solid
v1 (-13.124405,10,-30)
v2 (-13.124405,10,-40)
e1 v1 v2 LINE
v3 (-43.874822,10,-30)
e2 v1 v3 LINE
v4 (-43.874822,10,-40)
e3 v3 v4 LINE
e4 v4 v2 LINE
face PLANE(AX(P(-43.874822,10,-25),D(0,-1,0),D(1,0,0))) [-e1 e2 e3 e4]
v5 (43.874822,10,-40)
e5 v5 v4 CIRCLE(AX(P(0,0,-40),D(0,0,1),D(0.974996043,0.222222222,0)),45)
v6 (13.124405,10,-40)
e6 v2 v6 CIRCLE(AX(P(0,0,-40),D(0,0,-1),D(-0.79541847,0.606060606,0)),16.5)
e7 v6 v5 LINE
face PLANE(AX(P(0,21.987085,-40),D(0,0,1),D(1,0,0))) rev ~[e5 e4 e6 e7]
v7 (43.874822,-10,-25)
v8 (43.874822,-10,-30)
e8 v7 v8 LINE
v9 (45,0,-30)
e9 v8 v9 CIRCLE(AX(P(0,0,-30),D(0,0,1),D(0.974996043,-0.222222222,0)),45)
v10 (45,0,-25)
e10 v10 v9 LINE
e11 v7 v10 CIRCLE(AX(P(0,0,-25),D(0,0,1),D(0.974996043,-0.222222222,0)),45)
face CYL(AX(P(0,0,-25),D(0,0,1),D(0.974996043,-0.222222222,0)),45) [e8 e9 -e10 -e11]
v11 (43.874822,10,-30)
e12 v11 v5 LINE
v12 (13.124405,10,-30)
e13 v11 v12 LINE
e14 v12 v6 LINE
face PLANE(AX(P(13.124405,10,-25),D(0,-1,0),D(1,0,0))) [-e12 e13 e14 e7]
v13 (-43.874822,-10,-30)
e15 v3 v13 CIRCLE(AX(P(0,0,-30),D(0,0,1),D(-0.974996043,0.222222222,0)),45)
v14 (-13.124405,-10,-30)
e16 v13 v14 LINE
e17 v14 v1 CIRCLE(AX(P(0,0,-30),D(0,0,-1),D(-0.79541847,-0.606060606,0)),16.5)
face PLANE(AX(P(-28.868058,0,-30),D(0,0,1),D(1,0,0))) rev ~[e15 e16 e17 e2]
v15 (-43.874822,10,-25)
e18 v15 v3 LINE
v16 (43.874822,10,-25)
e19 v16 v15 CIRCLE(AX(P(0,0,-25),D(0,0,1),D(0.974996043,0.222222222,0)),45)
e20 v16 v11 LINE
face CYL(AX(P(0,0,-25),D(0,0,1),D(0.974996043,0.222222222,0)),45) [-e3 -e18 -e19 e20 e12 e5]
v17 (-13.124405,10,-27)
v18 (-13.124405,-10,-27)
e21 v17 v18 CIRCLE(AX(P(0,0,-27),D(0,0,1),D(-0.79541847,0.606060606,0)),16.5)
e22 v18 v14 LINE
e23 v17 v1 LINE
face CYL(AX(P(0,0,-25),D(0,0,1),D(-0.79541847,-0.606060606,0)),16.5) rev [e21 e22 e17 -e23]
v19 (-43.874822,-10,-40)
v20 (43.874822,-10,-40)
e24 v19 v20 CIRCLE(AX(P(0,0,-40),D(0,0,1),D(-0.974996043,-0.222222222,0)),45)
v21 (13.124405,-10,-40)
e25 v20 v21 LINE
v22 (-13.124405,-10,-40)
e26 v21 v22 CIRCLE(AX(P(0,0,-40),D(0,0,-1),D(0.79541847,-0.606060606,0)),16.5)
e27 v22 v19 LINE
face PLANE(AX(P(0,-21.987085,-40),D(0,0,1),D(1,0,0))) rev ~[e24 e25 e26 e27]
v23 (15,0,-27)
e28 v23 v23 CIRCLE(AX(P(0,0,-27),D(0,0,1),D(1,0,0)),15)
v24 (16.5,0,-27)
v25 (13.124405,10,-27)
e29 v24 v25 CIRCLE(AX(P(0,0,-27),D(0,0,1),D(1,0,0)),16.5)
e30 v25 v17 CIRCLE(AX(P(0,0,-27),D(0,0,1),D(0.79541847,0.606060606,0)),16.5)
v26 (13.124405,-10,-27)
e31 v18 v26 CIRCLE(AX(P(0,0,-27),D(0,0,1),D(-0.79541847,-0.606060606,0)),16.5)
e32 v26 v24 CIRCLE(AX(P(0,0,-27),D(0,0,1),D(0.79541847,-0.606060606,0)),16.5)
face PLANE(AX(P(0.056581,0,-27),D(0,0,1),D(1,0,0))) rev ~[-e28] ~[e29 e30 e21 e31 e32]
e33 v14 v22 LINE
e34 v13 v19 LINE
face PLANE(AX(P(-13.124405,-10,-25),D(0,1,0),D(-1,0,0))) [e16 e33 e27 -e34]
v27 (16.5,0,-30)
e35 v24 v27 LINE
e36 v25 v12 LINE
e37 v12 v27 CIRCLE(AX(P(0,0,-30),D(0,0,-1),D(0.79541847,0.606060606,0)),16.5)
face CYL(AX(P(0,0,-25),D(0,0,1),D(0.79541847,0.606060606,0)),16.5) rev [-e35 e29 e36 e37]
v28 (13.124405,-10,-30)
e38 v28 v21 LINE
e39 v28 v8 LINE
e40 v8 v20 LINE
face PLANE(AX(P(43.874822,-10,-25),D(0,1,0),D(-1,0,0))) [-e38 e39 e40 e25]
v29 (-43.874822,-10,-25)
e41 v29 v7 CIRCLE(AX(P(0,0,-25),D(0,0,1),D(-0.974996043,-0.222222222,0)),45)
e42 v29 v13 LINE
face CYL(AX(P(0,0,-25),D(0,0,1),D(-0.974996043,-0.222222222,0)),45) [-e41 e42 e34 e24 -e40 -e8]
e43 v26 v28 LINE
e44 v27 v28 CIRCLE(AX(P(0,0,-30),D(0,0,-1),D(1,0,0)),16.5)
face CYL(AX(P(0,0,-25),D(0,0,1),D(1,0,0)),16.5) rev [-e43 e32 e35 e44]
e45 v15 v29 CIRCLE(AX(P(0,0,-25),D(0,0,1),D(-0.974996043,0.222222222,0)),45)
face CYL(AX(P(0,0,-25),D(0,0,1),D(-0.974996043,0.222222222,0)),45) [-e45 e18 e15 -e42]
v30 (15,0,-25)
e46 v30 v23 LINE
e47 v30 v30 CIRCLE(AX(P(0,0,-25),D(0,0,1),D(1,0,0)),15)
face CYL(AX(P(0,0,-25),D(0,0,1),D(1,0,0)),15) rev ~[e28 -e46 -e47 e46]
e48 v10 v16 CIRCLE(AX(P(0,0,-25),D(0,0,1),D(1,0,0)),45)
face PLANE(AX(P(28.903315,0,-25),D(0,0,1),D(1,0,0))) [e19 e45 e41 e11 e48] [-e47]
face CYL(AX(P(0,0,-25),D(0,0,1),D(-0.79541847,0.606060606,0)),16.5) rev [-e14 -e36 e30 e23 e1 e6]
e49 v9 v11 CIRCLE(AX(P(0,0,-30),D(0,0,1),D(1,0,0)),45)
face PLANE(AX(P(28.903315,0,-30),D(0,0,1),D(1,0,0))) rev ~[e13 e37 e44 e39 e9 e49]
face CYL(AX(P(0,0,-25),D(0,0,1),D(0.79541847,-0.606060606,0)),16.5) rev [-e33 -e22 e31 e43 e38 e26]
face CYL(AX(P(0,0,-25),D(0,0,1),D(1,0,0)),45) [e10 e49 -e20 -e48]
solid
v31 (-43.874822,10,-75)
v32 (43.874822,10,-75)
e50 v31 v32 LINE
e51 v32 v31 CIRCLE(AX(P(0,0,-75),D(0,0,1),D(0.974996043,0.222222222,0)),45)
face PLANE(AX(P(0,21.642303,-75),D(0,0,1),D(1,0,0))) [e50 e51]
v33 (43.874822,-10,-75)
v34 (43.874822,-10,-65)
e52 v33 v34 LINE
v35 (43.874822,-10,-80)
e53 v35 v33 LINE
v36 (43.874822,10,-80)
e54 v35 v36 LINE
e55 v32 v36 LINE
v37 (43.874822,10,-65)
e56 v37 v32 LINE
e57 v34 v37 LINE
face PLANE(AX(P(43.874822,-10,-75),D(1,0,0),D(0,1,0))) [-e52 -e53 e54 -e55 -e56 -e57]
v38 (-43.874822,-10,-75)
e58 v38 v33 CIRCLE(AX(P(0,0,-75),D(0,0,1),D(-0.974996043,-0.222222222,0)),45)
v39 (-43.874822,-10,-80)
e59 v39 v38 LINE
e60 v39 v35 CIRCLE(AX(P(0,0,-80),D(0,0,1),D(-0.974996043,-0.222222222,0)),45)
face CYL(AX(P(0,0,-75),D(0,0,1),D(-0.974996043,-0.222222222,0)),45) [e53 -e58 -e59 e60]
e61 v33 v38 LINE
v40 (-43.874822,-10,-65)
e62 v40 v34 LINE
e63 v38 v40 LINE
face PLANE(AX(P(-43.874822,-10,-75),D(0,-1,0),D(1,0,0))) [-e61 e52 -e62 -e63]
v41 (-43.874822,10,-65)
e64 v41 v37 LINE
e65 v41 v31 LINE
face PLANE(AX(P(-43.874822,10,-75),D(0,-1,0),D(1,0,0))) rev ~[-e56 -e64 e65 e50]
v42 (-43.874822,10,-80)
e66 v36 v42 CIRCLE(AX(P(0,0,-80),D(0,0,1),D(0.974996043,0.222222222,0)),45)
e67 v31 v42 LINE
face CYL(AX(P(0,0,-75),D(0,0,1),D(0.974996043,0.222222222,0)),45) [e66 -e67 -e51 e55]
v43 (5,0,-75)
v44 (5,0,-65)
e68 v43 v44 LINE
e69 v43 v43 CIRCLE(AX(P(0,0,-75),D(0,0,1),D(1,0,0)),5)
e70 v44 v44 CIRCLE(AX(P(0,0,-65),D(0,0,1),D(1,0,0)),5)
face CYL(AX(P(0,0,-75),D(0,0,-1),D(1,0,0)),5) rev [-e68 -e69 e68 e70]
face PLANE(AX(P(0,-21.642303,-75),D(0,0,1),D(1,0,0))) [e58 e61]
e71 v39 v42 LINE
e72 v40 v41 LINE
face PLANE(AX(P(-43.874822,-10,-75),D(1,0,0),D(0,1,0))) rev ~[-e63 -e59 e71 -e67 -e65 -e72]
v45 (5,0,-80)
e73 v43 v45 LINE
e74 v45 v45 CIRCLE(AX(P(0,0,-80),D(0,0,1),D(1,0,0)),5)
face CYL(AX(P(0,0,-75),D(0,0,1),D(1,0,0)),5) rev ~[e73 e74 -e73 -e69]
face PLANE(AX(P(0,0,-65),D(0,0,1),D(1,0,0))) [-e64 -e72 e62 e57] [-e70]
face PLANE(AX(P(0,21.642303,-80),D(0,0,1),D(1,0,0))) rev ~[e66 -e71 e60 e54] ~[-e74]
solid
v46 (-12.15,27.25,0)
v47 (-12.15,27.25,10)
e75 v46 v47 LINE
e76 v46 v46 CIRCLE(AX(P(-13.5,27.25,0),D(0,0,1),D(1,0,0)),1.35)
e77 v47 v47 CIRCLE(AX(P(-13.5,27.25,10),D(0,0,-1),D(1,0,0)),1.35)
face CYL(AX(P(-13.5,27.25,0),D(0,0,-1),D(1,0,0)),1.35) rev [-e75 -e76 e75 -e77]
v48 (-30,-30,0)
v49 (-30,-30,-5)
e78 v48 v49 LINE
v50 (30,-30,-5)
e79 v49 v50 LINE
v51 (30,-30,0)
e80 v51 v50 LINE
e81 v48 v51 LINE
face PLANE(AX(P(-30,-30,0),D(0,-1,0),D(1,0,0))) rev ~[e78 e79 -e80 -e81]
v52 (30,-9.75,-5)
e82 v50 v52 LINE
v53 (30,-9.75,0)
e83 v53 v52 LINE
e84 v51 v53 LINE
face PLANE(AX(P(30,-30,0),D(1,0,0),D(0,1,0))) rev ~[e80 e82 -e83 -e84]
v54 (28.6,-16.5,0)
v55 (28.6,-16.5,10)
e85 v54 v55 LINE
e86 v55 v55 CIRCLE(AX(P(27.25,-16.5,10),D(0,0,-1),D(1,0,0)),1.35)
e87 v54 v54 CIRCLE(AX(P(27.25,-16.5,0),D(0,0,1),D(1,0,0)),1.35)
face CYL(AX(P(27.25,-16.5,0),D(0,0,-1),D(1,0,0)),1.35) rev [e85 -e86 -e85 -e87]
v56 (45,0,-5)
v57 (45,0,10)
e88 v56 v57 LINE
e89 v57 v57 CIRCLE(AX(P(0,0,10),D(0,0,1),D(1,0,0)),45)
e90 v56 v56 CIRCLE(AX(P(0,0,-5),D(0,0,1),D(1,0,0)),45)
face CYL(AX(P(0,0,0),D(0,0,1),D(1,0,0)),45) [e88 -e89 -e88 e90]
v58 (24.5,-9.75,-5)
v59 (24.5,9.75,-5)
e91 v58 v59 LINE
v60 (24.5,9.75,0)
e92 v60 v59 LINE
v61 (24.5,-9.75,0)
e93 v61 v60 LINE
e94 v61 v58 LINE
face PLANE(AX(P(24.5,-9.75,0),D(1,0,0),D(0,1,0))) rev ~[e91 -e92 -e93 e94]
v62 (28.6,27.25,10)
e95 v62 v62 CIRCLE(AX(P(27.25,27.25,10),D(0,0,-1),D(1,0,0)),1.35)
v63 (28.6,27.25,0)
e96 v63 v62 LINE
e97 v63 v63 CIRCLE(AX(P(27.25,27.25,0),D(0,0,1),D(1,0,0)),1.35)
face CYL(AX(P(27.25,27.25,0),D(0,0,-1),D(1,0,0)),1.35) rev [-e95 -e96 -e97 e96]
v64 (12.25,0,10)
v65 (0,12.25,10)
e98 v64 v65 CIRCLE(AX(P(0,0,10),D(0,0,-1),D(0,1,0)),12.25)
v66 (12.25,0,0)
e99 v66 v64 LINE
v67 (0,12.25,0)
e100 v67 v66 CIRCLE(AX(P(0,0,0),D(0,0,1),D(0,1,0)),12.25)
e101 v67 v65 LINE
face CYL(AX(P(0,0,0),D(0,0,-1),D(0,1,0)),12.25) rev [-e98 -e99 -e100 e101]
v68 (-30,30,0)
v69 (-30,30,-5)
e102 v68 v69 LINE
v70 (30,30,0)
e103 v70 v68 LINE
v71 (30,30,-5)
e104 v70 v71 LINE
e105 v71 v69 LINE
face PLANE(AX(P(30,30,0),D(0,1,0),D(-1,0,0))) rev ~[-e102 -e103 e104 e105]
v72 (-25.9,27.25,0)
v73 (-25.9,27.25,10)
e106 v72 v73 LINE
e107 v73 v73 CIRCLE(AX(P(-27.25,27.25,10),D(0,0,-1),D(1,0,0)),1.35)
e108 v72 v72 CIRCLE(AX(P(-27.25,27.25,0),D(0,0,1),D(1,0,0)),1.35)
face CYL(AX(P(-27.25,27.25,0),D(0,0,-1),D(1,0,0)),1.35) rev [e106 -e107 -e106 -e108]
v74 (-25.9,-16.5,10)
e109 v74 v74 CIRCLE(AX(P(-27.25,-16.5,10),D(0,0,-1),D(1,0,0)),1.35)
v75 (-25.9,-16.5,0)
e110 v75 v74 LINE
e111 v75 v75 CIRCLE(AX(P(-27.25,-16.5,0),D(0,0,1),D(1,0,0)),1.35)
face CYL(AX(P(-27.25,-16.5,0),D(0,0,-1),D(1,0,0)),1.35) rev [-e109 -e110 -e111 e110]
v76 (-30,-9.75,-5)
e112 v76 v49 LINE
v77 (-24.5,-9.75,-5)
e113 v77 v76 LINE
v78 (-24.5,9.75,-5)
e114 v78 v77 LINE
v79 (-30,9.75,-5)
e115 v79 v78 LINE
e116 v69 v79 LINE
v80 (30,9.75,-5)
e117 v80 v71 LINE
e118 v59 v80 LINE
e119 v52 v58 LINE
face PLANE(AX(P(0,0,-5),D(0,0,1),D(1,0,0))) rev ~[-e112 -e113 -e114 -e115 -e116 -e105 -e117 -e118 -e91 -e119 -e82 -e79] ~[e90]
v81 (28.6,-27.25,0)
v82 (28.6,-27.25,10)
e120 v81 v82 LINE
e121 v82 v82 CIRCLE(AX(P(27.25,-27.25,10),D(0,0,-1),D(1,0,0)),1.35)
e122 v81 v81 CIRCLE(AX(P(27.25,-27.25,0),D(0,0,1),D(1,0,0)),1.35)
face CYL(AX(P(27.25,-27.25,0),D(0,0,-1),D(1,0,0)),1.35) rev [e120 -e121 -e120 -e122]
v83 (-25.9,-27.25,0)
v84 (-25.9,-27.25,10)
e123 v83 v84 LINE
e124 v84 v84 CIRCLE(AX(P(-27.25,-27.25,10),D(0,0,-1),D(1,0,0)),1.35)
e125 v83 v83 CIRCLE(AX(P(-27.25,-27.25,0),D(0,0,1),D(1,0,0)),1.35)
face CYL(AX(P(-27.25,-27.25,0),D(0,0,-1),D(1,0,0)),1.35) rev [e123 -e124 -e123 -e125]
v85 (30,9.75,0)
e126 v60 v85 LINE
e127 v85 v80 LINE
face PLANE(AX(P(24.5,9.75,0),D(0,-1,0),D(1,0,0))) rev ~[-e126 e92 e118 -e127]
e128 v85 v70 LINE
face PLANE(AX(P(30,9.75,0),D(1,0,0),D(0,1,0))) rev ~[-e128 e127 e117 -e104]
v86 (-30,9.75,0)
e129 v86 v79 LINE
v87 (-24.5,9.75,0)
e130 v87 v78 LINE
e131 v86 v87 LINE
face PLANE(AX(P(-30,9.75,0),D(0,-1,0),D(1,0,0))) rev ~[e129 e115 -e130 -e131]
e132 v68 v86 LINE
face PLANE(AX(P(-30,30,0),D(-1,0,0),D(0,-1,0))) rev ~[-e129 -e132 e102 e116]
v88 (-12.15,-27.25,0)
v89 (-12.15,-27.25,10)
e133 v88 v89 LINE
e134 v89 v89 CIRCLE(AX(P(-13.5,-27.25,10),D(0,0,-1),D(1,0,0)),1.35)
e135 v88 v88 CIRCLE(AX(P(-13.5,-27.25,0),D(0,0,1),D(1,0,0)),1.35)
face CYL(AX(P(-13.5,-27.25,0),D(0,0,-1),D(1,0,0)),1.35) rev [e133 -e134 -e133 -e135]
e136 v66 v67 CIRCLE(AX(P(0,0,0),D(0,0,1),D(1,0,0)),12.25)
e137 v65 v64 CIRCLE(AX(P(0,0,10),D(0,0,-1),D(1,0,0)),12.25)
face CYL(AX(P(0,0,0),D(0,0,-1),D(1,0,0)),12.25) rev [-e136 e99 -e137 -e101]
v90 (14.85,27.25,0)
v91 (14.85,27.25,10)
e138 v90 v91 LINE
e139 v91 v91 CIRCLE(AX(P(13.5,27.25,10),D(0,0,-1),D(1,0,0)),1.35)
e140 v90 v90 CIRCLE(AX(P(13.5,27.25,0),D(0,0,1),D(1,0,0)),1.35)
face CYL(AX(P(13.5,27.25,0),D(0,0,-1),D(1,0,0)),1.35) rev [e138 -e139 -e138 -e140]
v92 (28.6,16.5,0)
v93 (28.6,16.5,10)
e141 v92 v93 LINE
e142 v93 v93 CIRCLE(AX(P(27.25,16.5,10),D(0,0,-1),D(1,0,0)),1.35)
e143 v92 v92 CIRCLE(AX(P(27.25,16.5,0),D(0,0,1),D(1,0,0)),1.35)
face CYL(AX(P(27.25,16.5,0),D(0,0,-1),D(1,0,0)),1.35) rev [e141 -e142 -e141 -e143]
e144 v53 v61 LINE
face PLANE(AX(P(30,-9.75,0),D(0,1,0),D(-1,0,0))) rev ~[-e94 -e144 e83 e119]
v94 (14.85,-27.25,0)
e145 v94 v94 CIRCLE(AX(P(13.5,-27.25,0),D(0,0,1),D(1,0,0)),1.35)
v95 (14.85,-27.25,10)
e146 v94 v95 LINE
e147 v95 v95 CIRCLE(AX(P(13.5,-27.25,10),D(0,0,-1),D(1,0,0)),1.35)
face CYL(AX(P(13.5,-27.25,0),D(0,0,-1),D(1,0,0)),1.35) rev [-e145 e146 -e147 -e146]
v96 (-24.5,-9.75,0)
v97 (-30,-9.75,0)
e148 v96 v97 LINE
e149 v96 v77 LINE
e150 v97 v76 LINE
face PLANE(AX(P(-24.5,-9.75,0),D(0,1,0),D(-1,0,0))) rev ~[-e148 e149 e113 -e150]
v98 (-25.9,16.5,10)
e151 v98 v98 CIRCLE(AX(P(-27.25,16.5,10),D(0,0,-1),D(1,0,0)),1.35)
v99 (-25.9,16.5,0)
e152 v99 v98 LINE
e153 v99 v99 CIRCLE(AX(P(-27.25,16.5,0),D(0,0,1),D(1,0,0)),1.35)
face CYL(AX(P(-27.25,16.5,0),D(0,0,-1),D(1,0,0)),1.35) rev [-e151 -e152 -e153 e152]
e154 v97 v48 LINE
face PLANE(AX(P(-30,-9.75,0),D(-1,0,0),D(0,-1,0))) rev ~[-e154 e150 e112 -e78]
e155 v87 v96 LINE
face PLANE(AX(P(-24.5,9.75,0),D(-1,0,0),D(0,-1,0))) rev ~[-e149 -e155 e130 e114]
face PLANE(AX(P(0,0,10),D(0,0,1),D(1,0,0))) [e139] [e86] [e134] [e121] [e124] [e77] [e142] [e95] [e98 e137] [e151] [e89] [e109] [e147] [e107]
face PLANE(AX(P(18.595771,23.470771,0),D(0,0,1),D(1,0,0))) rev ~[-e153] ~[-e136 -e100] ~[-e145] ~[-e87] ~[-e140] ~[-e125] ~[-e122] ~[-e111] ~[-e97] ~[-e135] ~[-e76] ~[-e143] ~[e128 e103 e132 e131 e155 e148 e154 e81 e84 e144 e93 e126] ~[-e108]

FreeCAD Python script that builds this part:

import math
import FreeCAD as App
import Part
import Sketcher
from FreeCAD import Vector


def add_polygon(sketch, points):
    """Adds a closed chain of lines whose ends are joined by coincident constraints."""
    first, n = sketch.GeometryCount, len(points)
    for a, b in zip(points, points[1:] + points[:1]):
        sketch.addGeometry(Part.LineSegment(App.Vector(*a, 0), App.Vector(*b, 0)), False)
    for i in range(n):
        sketch.addConstraint(Sketcher.Constraint("Coincident", first + i, 2, first + (i + 1) % n, 1))

doc = App.newDocument("Part")
params = doc.addObject("Spreadsheet::Sheet", "Params")
for row, (alias, value) in enumerate([
    ("sketch1_diameter", "90 mm"),
    ("pad1_length", "10 mm"),
    ("pad1_length2", "5 mm"),
    ("sketch2_diameter", "2.7 mm"),
    ("sketch2_width", "60 mm"),
    ("sketch2_radius", "12.25 mm"),
    ("sketch2_width2", "5.5 mm"),
    ("sketch2_height", "19.5 mm"),
    ("sketch3_diameter", "2.7 mm"),
    ("sketch3_radius", "12.25 mm"),
    ("sketch4_diameter", "30 mm"),
    ("sketch4_radius", "16.5 mm"),
    ("pad2_length", "2 mm"),
    ("sketch5_radius", "45 mm"),
    ("sketch5_radius2", "16.5 mm"),
    ("pad3_length", "5 mm"),
    ("sketch6_radius", "45 mm"),
    ("sketch6_radius2", "16.5 mm"),
    ("pad4_length", "15 mm"),
    ("sketch7_diameter", "10 mm"),
    ("sketch7_height", "20 mm"),
    ("pad5_length", "10 mm"),
    ("pad5_length2", "5 mm"),
    ("sketch8_radius", "45 mm"),
    ("pad6_length", "5 mm"),
], start=1):
    params.set(f"A{row}", alias)
    params.set(f"B{row}", "=" + value)
    params.setAlias(f"B{row}", alias)

body = doc.addObject("PartDesign::Body", "Body")

sketch1 = body.newObject("Sketcher::SketchObject", "Sketch")
sketch1.AttachmentSupport = (doc.getObject("XY_Plane"), [""])
sketch1.MapMode = "FlatFace"
sketch1.addGeometry(Part.Circle(Vector(0, 0, 0), Vector(0, 0, 1), 45), False)
sketch1.addConstraint([
    Sketcher.Constraint("Coincident", 0, 3, -1, 1),
    Sketcher.Constraint("Diameter", 0, 90.0),
])
sketch1.setExpression("Constraints[1]", "Params.sketch1_diameter")
pad1 = body.newObject("PartDesign::Pad", "Pad")
pad1.Profile = sketch1
pad1.Type = "TwoLengths"
pad1.setExpression("Length", "Params.pad1_length")
pad1.setExpression("Length2", "Params.pad1_length2")

sketch2 = body.newObject("Sketcher::SketchObject", "Sketch001")
sketch2.AttachmentSupport = (doc.getObject("XY_Plane"), [""])
sketch2.MapMode = "FlatFace"
add_polygon(sketch2, [(24.5, 9.75), (30, 9.75), (30, 30), (-30, 30), (-30, 9.75), (-24.5, 9.75), (-24.5, -9.75), (-30, -9.75), (-30, -30), (30, -30), (30, -9.75), (24.5, -9.75)])
sketch2.addGeometry(Part.Circle(Vector(-27.25, -27.25, 0), Vector(0, 0, 1), 1.35), False)
sketch2.addGeometry(Part.Circle(Vector(-27.25, -16.5, 0), Vector(0, 0, 1), 1.35), False)
sketch2.addGeometry(Part.Circle(Vector(-13.5, -27.25, 0), Vector(0, 0, 1), 1.35), False)
sketch2.addGeometry(Part.Circle(Vector(13.5, -27.25, 0), Vector(0, 0, 1), 1.35), False)
sketch2.addGeometry(Part.Circle(Vector(27.25, -27.25, 0), Vector(0, 0, 1), 1.35), False)
sketch2.addGeometry(Part.Circle(Vector(27.25, -16.5, 0), Vector(0, 0, 1), 1.35), False)
sketch2.addGeometry(Part.Circle(Vector(-27.25, 16.5, 0), Vector(0, 0, 1), 1.35), False)
sketch2.addGeometry(Part.Circle(Vector(-27.25, 27.25, 0), Vector(0, 0, 1), 1.35), False)
sketch2.addGeometry(Part.Circle(Vector(-13.5, 27.25, 0), Vector(0, 0, 1), 1.35), False)
sketch2.addGeometry(Part.ArcOfCircle(Part.Circle(Vector(0, 0, 0), Vector(0, 0, 1), 12.25), math.radians(0), math.radians(90)), False)
sketch2.addGeometry(Part.ArcOfCircle(Part.Circle(Vector(0, 0, 0), Vector(0, 0, 1), 12.25), math.radians(90), math.radians(360)), False)
sketch2.addGeometry(Part.Circle(Vector(13.5, 27.25, 0), Vector(0, 0, 1), 1.35), False)
sketch2.addGeometry(Part.Circle(Vector(27.25, 16.5, 0), Vector(0, 0, 1), 1.35), False)
sketch2.addGeometry(Part.Circle(Vector(27.25, 27.25, 0), Vector(0, 0, 1), 1.35), False)
sketch2.addConstraint([
    Sketcher.Constraint("Tangent", 21, 1, 22, 2),
    Sketcher.Constraint("Coincident", 22, 1, 21, 2),
    Sketcher.Constraint("Horizontal", 0),
    Sketcher.Constraint("Vertical", 1),
    Sketcher.Constraint("Horizontal", 2),
    Sketcher.Constraint("Vertical", 3),
    Sketcher.Constraint("Horizontal", 4),
    Sketcher.Constraint("Vertical", 5),
    Sketcher.Constraint("Horizontal", 6),
    Sketcher.Constraint("Vertical", 7),
    Sketcher.Constraint("Horizontal", 8),
    Sketcher.Constraint("Vertical", 9),
    Sketcher.Constraint("Horizontal", 10),
    Sketcher.Constraint("Vertical", 11),
    Sketcher.Constraint("Coincident", 21, 3, -1, 1),
    Sketcher.Constraint("Equal", 12, 13),
    Sketcher.Constraint("Equal", 13, 14),
    Sketcher.Constraint("Equal", 14, 15),
    Sketcher.Constraint("Equal", 15, 16),
    Sketcher.Constraint("Equal", 16, 17),
    Sketcher.Constraint("Equal", 17, 18),
    Sketcher.Constraint("Equal", 18, 19),
    Sketcher.Constraint("Equal", 19, 20),
    Sketcher.Constraint("Equal", 20, 23),
    Sketcher.Constraint("Equal", 23, 24),
    Sketcher.Constraint("Equal", 24, 25),
    Sketcher.Constraint("Symmetric", 17, 3, 18, 3, -1, 1),
    Sketcher.Constraint("Symmetric", 16, 3, 19, 3, -1, 1),
    Sketcher.Constraint("Symmetric", 15, 3, 20, 3, -1, 1),
    Sketcher.Constraint("Symmetric", 14, 3, 23, 3, -1, 1),
    Sketcher.Constraint("Symmetric", 13, 3, 24, 3, -1, 1),
    Sketcher.Constraint("Symmetric", 12, 3, 25, 3, -1, 1),
    Sketcher.Constraint("Symmetric", 0, 2, 6, 2, -1, 1),
    Sketcher.Constraint("Symmetric", 2, 2, 8, 2, -1, 1),
    Sketcher.Constraint("Symmetric", 4, 2, 10, 2, -1, 1),
    Sketcher.Constraint("Symmetric", 14, 3, 15, 3, -2),
    Sketcher.Constraint("Symmetric", 12, 3, 16, 3, -2),
    Sketcher.Constraint("Symmetric", 13, 3, 17, 3, -2),
    Sketcher.Constraint("Symmetric", 0, 2, 3, 2, -2),
    Sketcher.Constraint("PointOnObject", 21, 1, -1),
    Sketcher.Constraint("PointOnObject", 22, 1, -2),
    Sketcher.Constraint("Horizontal", 12, 3, 14, 3),
    Sketcher.Constraint("Vertical", 12, 3, 13, 3),
    Sketcher.Constraint("Diameter", 12, 2.7),
    Sketcher.Constraint("DistanceX", 2, 2, 2, 1, 60.0),
    Sketcher.Constraint("Radius", 21, 12.25),
    Sketcher.Constraint("DistanceX", 0, 1, 0, 2, 5.5),
    Sketcher.Constraint("DistanceY", 5, 2, 5, 1, 19.5),
    Sketcher.Constraint("DistanceY", -1, 1, 1, 2, 30.0),
    Sketcher.Constraint("DistanceX", 14, 3, 15, 3, 27.0),
    Sketcher.Constraint("DistanceY", 13, 3, 18, 3, 33.0),
    Sketcher.Constraint("DistanceY", 22, 1, 20, 3, 15.0),
    Sketcher.Constraint("DistanceX", 12, 3, 16, 3, 54.5),
])
sketch2.setExpression("Constraints[55]", "Params.sketch2_diameter")
sketch2.setExpression("Constraints[56]", "Params.sketch2_width")
sketch2.setExpression("Constraints[57]", "Params.sketch2_radius")
sketch2.setExpression("Constraints[58]", "Params.sketch2_width2")
sketch2.setExpression("Constraints[59]", "Params.sketch2_height")
pocket1 = body.newObject("PartDesign::Pocket", "Pocket")
pocket1.Profile = sketch2
pocket1.Type = "ThroughAll"

sketch3 = body.newObject("Sketcher::SketchObject", "Sketch002")
sketch3.AttachmentSupport = (doc.getObject("XY_Plane"), [""])
sketch3.MapMode = "FlatFace"
sketch3.addGeometry([
    Part.Circle(Vector(27.25, -27.25, 0), Vector(0, 0, 1), 1.35),
    Part.Circle(Vector(27.25, -16.5, 0), Vector(0, 0, 1), 1.35),
    Part.ArcOfCircle(Part.Circle(Vector(0, 0, 0), Vector(0, 0, 1), 12.25), math.radians(90), math.radians(360)),
    Part.ArcOfCircle(Part.Circle(Vector(0, 0, 0), Vector(0, 0, 1), 12.25), math.radians(0), math.radians(90)),
    Part.Circle(Vector(27.25, 16.5, 0), Vector(0, 0, 1), 1.35),
    Part.Circle(Vector(27.25, 27.25, 0), Vector(0, 0, 1), 1.35),
    Part.Circle(Vector(13.5, -27.25, 0), Vector(0, 0, 1), 1.35),
    Part.Circle(Vector(13.5, 27.25, 0), Vector(0, 0, 1), 1.35),
    Part.Circle(Vector(-27.25, -16.5, 0), Vector(0, 0, 1), 1.35),
    Part.Circle(Vector(-27.25, -27.25, 0), Vector(0, 0, 1), 1.35),
    Part.Circle(Vector(-13.5, -27.25, 0), Vector(0, 0, 1), 1.35),
    Part.Circle(Vector(-27.25, 16.5, 0), Vector(0, 0, 1), 1.35),
    Part.Circle(Vector(-27.25, 27.25, 0), Vector(0, 0, 1), 1.35),
    Part.Circle(Vector(-13.5, 27.25, 0), Vector(0, 0, 1), 1.35),
], False)
sketch3.addConstraint([
    Sketcher.Constraint("Tangent", 2, 1, 3, 2),
    Sketcher.Constraint("Coincident", 3, 1, 2, 2),
    Sketcher.Constraint("Coincident", 2, 3, -1, 1),
    Sketcher.Constraint("Equal", 0, 1),
    Sketcher.Constraint("Equal", 1, 4),
    Sketcher.Constraint("Equal", 4, 5),
    Sketcher.Constraint("Equal", 5, 6),
    Sketcher.Constraint("Equal", 6, 7),
    Sketcher.Constraint("Equal", 7, 8),
    Sketcher.Constraint("Equal", 8, 9),
    Sketcher.Constraint("Equal", 9, 10),
    Sketcher.Constraint("Equal", 10, 11),
    Sketcher.Constraint("Equal", 11, 12),
    Sketcher.Constraint("Equal", 12, 13),
    Sketcher.Constraint("Symmetric", 4, 3, 8, 3, -1, 1),
    Sketcher.Constraint("Symmetric", 5, 3, 9, 3, -1, 1),
    Sketcher.Constraint("Symmetric", 7, 3, 10, 3, -1, 1),
    Sketcher.Constraint("Symmetric", 1, 3, 11, 3, -1, 1),
    Sketcher.Constraint("Symmetric", 0, 3, 12, 3, -1, 1),
    Sketcher.Constraint("Symmetric", 6, 3, 13, 3, -1, 1),
    Sketcher.Constraint("Symmetric", 1, 3, 8, 3, -2),
    Sketcher.Constraint("Symmetric", 0, 3, 9, 3, -2),
    Sketcher.Constraint("Symmetric", 6, 3, 10, 3, -2),
    Sketcher.Constraint("PointOnObject", 2, 1, -2),
    Sketcher.Constraint("PointOnObject", 3, 1, -1),
    Sketcher.Constraint("Horizontal", 0, 3, 6, 3),
    Sketcher.Constraint("Vertical", 0, 3, 1, 3),
    Sketcher.Constraint("Diameter", 0, 2.7),
    Sketcher.Constraint("Radius", 2, 12.25),
    Sketcher.Constraint("DistanceY", 1, 3, 4, 3, 33.0),
    Sketcher.Constraint("DistanceX", 10, 3, 6, 3, 27.0),
    Sketcher.Constraint("DistanceY", 2, 1, 7, 3, 15.0),
    Sketcher.Constraint("DistanceX", 3, 1, 1, 3, 15.0),
])
sketch3.setExpression("Constraints[27]", "Params.sketch3_diameter")
sketch3.setExpression("Constraints[28]", "Params.sketch3_radius")
pocket2 = body.newObject("PartDesign::Pocket", "Pocket001")
pocket2.Profile = sketch3
pocket2.Type = "ThroughAll"
pocket2.Midplane = True
body2 = doc.addObject("PartDesign::Body", "Body001")

sketch4 = body2.newObject("Sketcher::SketchObject", "Sketch003")
sketch4.AttachmentSupport = (doc.getObject("XY_Plane001"), [""])
sketch4.MapMode = "FlatFace"
sketch4.AttachmentOffset = App.Placement(Vector(0, 0, -25), App.Rotation())
sketch4.addGeometry([
    Part.ArcOfCircle(Part.Circle(Vector(0, 0, 0), Vector(0, 0, 1), 16.5), math.radians(-37.305201), math.radians(0)),
    Part.ArcOfCircle(Part.Circle(Vector(0, 0, 0), Vector(0, 0, 1), 16.5), math.radians(0), math.radians(37.305201)),
    Part.ArcOfCircle(Part.Circle(Vector(0, 0, 0), Vector(0, 0, 1), 16.5), math.radians(37.305201), math.radians(142.694799)),
    Part.ArcOfCircle(Part.Circle(Vector(0, 0, 0), Vector(0, 0, 1), 16.5), math.radians(142.694799), math.radians(217.305201)),
    Part.ArcOfCircle(Part.Circle(Vector(0, 0, 0), Vector(0, 0, 1), 16.5), math.radians(-142.694799), math.radians(-37.305201)),
    Part.Circle(Vector(0, 0, 0), Vector(0, 0, 1), 15),
], False)
sketch4.addConstraint([
    Sketcher.Constraint("Tangent", 0, 2, 1, 1),
    Sketcher.Constraint("Tangent", 1, 2, 2, 1),
    Sketcher.Constraint("Tangent", 2, 2, 3, 1),
    Sketcher.Constraint("Tangent", 3, 2, 4, 1),
    Sketcher.Constraint("Tangent", 4, 2, 0, 1),
    Sketcher.Constraint("Coincident", 0, 3, -1, 1),
    Sketcher.Constraint("Coincident", 2, 3, -1, 1),
    Sketcher.Constraint("Coincident", 5, 3, -1, 1),
    Sketcher.Constraint("PointOnObject", 0, 2, -1),
    Sketcher.Constraint("Horizontal", 1, 2, 2, 2),
    Sketcher.Constraint("Horizontal", 3, 2, 4, 2),
    Sketcher.Constraint("Vertical", 2, 2, 3, 2),
    Sketcher.Constraint("Diameter", 5, 30.0),
    Sketcher.Constraint("Radius", 0, 16.5),
    Sketcher.Constraint("DistanceY", -1, 1, 1, 2, 10.0),
])
sketch4.setExpression("Constraints[12]", "Params.sketch4_diameter")
sketch4.setExpression("Constraints[13]", "Params.sketch4_radius")
pad2 = body2.newObject("PartDesign::Pad", "Pad001")
pad2.Profile = sketch4
pad2.setExpression("Length", "Params.pad2_length")
pad2.Reversed = True

sketch5 = body2.newObject("Sketcher::SketchObject", "Sketch004")
sketch5.AttachmentSupport = (doc.getObject("XY_Plane001"), [""])
sketch5.MapMode = "FlatFace"
sketch5.AttachmentOffset = App.Placement(Vector(0, 0, -25), App.Rotation())
sketch5.addGeometry([
    Part.ArcOfCircle(Part.Circle(Vector(0, 0, 0), Vector(0, 0, 1), 16.5), math.radians(0), math.radians(37.305201)),
    Part.ArcOfCircle(Part.Circle(Vector(0, 0, 0), Vector(0, 0, 1), 16.5), math.radians(-37.305201), math.radians(0)),
    Part.LineSegment(Vector(13.124405, -10, 0), Vector(43.874822, -10, 0)),
    Part.ArcOfCircle(Part.Circle(Vector(0, 0, 0), Vector(0, 0, 1), 45), math.radians(-12.839588), math.radians(0)),
    Part.ArcOfCircle(Part.Circle(Vector(0, 0, 0), Vector(0, 0, 1), 45), math.radians(0), math.radians(12.839588)),
    Part.LineSegment(Vector(43.874822, 10, 0), Vector(13.124405, 10, 0)),
    Part.ArcOfCircle(Part.Circle(Vector(0, 0, 0), Vector(0, 0, 1), 16.5), math.radians(142.694799), math.radians(217.305201)),
    Part.LineSegment(Vector(-13.124405, 10, 0), Vector(-43.874822, 10, 0)),
    Part.ArcOfCircle(Part.Circle(Vector(0, 0, 0), Vector(0, 0, 1), 45), math.radians(167.160412), math.radians(192.839588)),
    Part.LineSegment(Vector(-43.874822, -10, 0), Vector(-13.124405, -10, 0)),
], False)
sketch5.addConstraint([
    Sketcher.Constraint("Tangent", 0, 1, 1, 2),
    Sketcher.Constraint("Coincident", 1, 1, 2, 1),
    Sketcher.Constraint("Coincident", 2, 2, 3, 1),
    Sketcher.Constraint("Tangent", 3, 2, 4, 1),
    Sketcher.Constraint("Coincident", 4, 2, 5, 1),
    Sketcher.Constraint("Coincident", 5, 2, 0, 2),
    Sketcher.Constraint("Coincident", 6, 1, 7, 1),
    Sketcher.Constraint("Coincident", 7, 2, 8, 1),
    Sketcher.Constraint("Coincident", 8, 2, 9, 1),
    Sketcher.Constraint("Coincident", 9, 2, 6, 2),
    Sketcher.Constraint("Horizontal", 2),
    Sketcher.Constraint("Horizontal", 5),
    Sketcher.Constraint("Horizontal", 7),
    Sketcher.Constraint("Horizontal", 9),
    Sketcher.Constraint("Coincident", 0, 3, -1, 1),
    Sketcher.Constraint("Coincident", 3, 3, -1, 1),
    Sketcher.Constraint("Coincident", 6, 3, -1, 1),
    Sketcher.Constraint("Coincident", 8, 3, -1, 1),
    Sketcher.Constraint("Equal", 0, 1),
    Sketcher.Constraint("Equal", 3, 4),
    Sketcher.Constraint("Equal", 1, 6),
    Sketcher.Constraint("Equal", 4, 8),
    Sketcher.Constraint("PointOnObject", 0, 1, -1),
    Sketcher.Constraint("PointOnObject", 3, 2, -1),
    Sketcher.Constraint("Horizontal", 5, 2, 6, 1),
    Sketcher.Constraint("Horizontal", 2, 2, 8, 2),
    Sketcher.Constraint("Vertical", 2, 2, 4, 2),
    Sketcher.Constraint("Radius", 3, 45.0),
    Sketcher.Constraint("Radius", 0, 16.5),
    Sketcher.Constraint("DistanceY", 1, 1, -1, 1, 10.0),
])
sketch5.setExpression("Constraints[27]", "Params.sketch5_radius")
sketch5.setExpression("Constraints[28]", "Params.sketch5_radius2")
pad3 = body2.newObject("PartDesign::Pad", "Pad002")
pad3.Profile = sketch5
pad3.setExpression("Length", "Params.pad3_length")
pad3.Reversed = True

sketch6 = body2.newObject("Sketcher::SketchObject", "Sketch005")
sketch6.AttachmentSupport = (doc.getObject("XY_Plane001"), [""])
sketch6.MapMode = "FlatFace"
sketch6.AttachmentOffset = App.Placement(Vector(0, 0, -25), App.Rotation())
sketch6.addGeometry([
    Part.ArcOfCircle(Part.Circle(Vector(0, 0, 0), Vector(0, 0, 1), 16.5), math.radians(37.305201), math.radians(142.694799)),
    Part.LineSegment(Vector(13.124405, 10, 0), Vector(43.874822, 10, 0)),
    Part.ArcOfCircle(Part.Circle(Vector(0, 0, 0), Vector(0, 0, 1), 45), math.radians(12.839588), math.radians(167.160412)),
    Part.LineSegment(Vector(-43.874822, 10, 0), Vector(-13.124405, 10, 0)),
    Part.LineSegment(Vector(43.874822, -10, 0), Vector(13.124405, -10, 0)),
    Part.ArcOfCircle(Part.Circle(Vector(0, 0, 0), Vector(0, 0, 1), 16.5), math.radians(-142.694799), math.radians(-37.305201)),
    Part.LineSegment(Vector(-13.124405, -10, 0), Vector(-43.874822, -10, 0)),
    Part.ArcOfCircle(Part.Circle(Vector(0, 0, 0), Vector(0, 0, 1), 45), math.radians(-167.160412), math.radians(-12.839588)),
], False)
sketch6.addConstraint([
    Sketcher.Constraint("Coincident", 0, 1, 1, 1),
    Sketcher.Constraint("Coincident", 1, 2, 2, 1),
    Sketcher.Constraint("Coincident", 2, 2, 3, 1),
    Sketcher.Constraint("Coincident", 3, 2, 0, 2),
    Sketcher.Constraint("Coincident", 4, 2, 5, 2),
    Sketcher.Constraint("Coincident", 5, 1, 6, 1),
    Sketcher.Constraint("Coincident", 6, 2, 7, 1),
    Sketcher.Constraint("Coincident", 7, 2, 4, 1),
    Sketcher.Constraint("Horizontal", 1),
    Sketcher.Constraint("Horizontal", 3),
    Sketcher.Constraint("Horizontal", 4),
    Sketcher.Constraint("Horizontal", 6),
    Sketcher.Constraint("Coincident", 0, 3, -1, 1),
    Sketcher.Constraint("Coincident", 2, 3, -1, 1),
    Sketcher.Constraint("Coincident", 5, 3, -1, 1),
    Sketcher.Constraint("Coincident", 7, 3, -1, 1),
    Sketcher.Constraint("Equal", 0, 5),
    Sketcher.Constraint("Equal", 2, 7),
    Sketcher.Constraint("Horizontal", 1, 2, 2, 2),
    Sketcher.Constraint("Horizontal", 4, 2, 5, 1),
    Sketcher.Constraint("Vertical", 0, 1, 4, 2),
    Sketcher.Constraint("Radius", 2, 45.0),
    Sketcher.Constraint("Radius", 0, 16.5),
    Sketcher.Constraint("DistanceY", -1, 1, 0, 1, 10.0),
])
sketch6.setExpression("Constraints[21]", "Params.sketch6_radius")
sketch6.setExpression("Constraints[22]", "Params.sketch6_radius2")
pad4 = body2.newObject("PartDesign::Pad", "Pad003")
pad4.Profile = sketch6
pad4.setExpression("Length", "Params.pad4_length")
pad4.Reversed = True
body3 = doc.addObject("PartDesign::Body", "Body002")

sketch7 = body3.newObject("Sketcher::SketchObject", "Sketch006")
sketch7.AttachmentSupport = (doc.getObject("XY_Plane002"), [""])
sketch7.MapMode = "FlatFace"
sketch7.AttachmentOffset = App.Placement(Vector(0, 0, -75), App.Rotation())
add_polygon(sketch7, [(-43.874822, 10), (-43.874822, -10), (43.874822, -10), (43.874822, 10)])
sketch7.addGeometry(Part.Circle(Vector(0, 0, 0), Vector(0, 0, 1), 5), False)
sketch7.addConstraint([
    Sketcher.Constraint("Vertical", 0),
    Sketcher.Constraint("Horizontal", 1),
    Sketcher.Constraint("Vertical", 2),
    Sketcher.Constraint("Horizontal", 3),
    Sketcher.Constraint("Coincident", 4, 3, -1, 1),
    Sketcher.Constraint("Symmetric", 0, 2, 2, 2, -1, 1),
    Sketcher.Constraint("Diameter", 4, 10.0),
    Sketcher.Constraint("DistanceY", 0, 2, 0, 1, 20.0),
    Sketcher.Constraint("DistanceX", 1, 1, 1, 2, 87.749644),
])
sketch7.setExpression("Constraints[10]", "Params.sketch7_diameter")
sketch7.setExpression("Constraints[11]", "Params.sketch7_height")
pad5 = body3.newObject("PartDesign::Pad", "Pad004")
pad5.Profile = sketch7
pad5.Type = "TwoLengths"
pad5.setExpression("Length", "Params.pad5_length")
pad5.setExpression("Length2", "Params.pad5_length2")

sketch8 = body3.newObject("Sketcher::SketchObject", "Sketch007")
sketch8.AttachmentSupport = (doc.getObject("XY_Plane002"), [""])
sketch8.MapMode = "FlatFace"
sketch8.AttachmentOffset = App.Placement(Vector(0, 0, -75), App.Rotation())
sketch8.addGeometry([
    Part.LineSegment(Vector(-43.874822, 10, 0), Vector(43.874822, 10, 0)),
    Part.ArcOfCircle(Part.Circle(Vector(0, 0, 0), Vector(0, 0, 1), 45), math.radians(12.839588), math.radians(167.160412)),
    Part.ArcOfCircle(Part.Circle(Vector(0, 0, 0), Vector(0, 0, 1), 45), math.radians(-167.160412), math.radians(-12.839588)),
    Part.LineSegment(Vector(43.874822, -10, 0), Vector(-43.874822, -10, 0)),
], False)
sketch8.addConstraint([
    Sketcher.Constraint("Coincident", 0, 1, 1, 2),
    Sketcher.Constraint("Coincident", 1, 1, 0, 2),
    Sketcher.Constraint("Coincident", 2, 1, 3, 2),
    Sketcher.Constraint("Coincident", 3, 1, 2, 2),
    Sketcher.Constraint("Horizontal", 0),
    Sketcher.Constraint("Horizontal", 3),
    Sketcher.Constraint("Coincident", 1, 3, -1, 1),
    Sketcher.Constraint("Coincident", 2, 3, -1, 1),
    Sketcher.Constraint("Equal", 1, 2),
    Sketcher.Constraint("Vertical", 0, 1, 2, 1),
    Sketcher.Constraint("Radius", 1, 45.0),
    Sketcher.Constraint("DistanceY", -1, 1, 0, 1, 10.0),
])
sketch8.setExpression("Constraints[10]", "Params.sketch8_radius")
pad6 = body3.newObject("PartDesign::Pad", "Pad005")
pad6.Profile = sketch8
pad6.setExpression("Length", "Params.pad6_length")
pad6.Reversed = True

doc.recompute()
